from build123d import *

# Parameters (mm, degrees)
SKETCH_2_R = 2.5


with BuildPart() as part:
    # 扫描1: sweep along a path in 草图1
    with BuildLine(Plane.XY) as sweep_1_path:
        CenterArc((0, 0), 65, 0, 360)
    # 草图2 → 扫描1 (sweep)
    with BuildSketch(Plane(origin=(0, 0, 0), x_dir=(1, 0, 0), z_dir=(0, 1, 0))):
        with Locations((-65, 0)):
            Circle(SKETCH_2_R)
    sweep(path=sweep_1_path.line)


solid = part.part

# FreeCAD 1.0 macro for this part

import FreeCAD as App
import Part
import Sketcher

V = App.Vector
Q = App.Units.Quantity

doc = App.newDocument("Part")
params = doc.addObject("Spreadsheet::Sheet", "Params")
for row, (alias, value) in enumerate([
    ("sketch1_diameter", "5 mm"),
    ("sketch2_diameter", "130 mm"),
], start=1):
    params.set(f"A{row}", alias)
    params.set(f"B{row}", "=" + value)
    params.setAlias(f"B{row}", alias)

body = doc.addObject("PartDesign::Body", "Body")

sketch1 = body.newObject("Sketcher::SketchObject", "Sketch")
sketch1.AttachmentSupport = (doc.getObject("XZ_Plane"), [""])
sketch1.MapMode = "FlatFace"
sketch1.addGeometry(Part.Circle(V(-65, 0, 0), V(0, 0, 1), 2.5), False)
sketch1.addConstraint(Sketcher.Constraint("PointOnObject", 0, 3, -1))
sketch1.addConstraint(Sketcher.Constraint("Diameter", 0, Q("5 mm")))
sketch1.addConstraint(Sketcher.Constraint("DistanceX", 0, 3, -1, 1, Q("65 mm")))
sketch1.setExpression("Constraints[1]", "Params.sketch1_diameter")

sketch2 = body.newObject("Sketcher::SketchObject", "Sketch001")
sketch2.AttachmentSupport = (doc.getObject("XY_Plane"), [""])
sketch2.MapMode = "FlatFace"
sketch2.addGeometry(Part.Circle(V(0, 0, 0), V(0, 0, 1), 65), False)
sketch2.addConstraint(Sketcher.Constraint("Coincident", 0, 3, -1, 1))
sketch2.addConstraint(Sketcher.Constraint("Diameter", 0, Q("130 mm")))
sketch2.setExpression("Constraints[1]", "Params.sketch2_diameter")
doc.recompute()

additivepipe = body.newObject("PartDesign::AdditivePipe", "AdditivePipe")
additivepipe.Profile = sketch1
additivepipe.Spine = (sketch2, ["Edge1"])

doc.recompute()
